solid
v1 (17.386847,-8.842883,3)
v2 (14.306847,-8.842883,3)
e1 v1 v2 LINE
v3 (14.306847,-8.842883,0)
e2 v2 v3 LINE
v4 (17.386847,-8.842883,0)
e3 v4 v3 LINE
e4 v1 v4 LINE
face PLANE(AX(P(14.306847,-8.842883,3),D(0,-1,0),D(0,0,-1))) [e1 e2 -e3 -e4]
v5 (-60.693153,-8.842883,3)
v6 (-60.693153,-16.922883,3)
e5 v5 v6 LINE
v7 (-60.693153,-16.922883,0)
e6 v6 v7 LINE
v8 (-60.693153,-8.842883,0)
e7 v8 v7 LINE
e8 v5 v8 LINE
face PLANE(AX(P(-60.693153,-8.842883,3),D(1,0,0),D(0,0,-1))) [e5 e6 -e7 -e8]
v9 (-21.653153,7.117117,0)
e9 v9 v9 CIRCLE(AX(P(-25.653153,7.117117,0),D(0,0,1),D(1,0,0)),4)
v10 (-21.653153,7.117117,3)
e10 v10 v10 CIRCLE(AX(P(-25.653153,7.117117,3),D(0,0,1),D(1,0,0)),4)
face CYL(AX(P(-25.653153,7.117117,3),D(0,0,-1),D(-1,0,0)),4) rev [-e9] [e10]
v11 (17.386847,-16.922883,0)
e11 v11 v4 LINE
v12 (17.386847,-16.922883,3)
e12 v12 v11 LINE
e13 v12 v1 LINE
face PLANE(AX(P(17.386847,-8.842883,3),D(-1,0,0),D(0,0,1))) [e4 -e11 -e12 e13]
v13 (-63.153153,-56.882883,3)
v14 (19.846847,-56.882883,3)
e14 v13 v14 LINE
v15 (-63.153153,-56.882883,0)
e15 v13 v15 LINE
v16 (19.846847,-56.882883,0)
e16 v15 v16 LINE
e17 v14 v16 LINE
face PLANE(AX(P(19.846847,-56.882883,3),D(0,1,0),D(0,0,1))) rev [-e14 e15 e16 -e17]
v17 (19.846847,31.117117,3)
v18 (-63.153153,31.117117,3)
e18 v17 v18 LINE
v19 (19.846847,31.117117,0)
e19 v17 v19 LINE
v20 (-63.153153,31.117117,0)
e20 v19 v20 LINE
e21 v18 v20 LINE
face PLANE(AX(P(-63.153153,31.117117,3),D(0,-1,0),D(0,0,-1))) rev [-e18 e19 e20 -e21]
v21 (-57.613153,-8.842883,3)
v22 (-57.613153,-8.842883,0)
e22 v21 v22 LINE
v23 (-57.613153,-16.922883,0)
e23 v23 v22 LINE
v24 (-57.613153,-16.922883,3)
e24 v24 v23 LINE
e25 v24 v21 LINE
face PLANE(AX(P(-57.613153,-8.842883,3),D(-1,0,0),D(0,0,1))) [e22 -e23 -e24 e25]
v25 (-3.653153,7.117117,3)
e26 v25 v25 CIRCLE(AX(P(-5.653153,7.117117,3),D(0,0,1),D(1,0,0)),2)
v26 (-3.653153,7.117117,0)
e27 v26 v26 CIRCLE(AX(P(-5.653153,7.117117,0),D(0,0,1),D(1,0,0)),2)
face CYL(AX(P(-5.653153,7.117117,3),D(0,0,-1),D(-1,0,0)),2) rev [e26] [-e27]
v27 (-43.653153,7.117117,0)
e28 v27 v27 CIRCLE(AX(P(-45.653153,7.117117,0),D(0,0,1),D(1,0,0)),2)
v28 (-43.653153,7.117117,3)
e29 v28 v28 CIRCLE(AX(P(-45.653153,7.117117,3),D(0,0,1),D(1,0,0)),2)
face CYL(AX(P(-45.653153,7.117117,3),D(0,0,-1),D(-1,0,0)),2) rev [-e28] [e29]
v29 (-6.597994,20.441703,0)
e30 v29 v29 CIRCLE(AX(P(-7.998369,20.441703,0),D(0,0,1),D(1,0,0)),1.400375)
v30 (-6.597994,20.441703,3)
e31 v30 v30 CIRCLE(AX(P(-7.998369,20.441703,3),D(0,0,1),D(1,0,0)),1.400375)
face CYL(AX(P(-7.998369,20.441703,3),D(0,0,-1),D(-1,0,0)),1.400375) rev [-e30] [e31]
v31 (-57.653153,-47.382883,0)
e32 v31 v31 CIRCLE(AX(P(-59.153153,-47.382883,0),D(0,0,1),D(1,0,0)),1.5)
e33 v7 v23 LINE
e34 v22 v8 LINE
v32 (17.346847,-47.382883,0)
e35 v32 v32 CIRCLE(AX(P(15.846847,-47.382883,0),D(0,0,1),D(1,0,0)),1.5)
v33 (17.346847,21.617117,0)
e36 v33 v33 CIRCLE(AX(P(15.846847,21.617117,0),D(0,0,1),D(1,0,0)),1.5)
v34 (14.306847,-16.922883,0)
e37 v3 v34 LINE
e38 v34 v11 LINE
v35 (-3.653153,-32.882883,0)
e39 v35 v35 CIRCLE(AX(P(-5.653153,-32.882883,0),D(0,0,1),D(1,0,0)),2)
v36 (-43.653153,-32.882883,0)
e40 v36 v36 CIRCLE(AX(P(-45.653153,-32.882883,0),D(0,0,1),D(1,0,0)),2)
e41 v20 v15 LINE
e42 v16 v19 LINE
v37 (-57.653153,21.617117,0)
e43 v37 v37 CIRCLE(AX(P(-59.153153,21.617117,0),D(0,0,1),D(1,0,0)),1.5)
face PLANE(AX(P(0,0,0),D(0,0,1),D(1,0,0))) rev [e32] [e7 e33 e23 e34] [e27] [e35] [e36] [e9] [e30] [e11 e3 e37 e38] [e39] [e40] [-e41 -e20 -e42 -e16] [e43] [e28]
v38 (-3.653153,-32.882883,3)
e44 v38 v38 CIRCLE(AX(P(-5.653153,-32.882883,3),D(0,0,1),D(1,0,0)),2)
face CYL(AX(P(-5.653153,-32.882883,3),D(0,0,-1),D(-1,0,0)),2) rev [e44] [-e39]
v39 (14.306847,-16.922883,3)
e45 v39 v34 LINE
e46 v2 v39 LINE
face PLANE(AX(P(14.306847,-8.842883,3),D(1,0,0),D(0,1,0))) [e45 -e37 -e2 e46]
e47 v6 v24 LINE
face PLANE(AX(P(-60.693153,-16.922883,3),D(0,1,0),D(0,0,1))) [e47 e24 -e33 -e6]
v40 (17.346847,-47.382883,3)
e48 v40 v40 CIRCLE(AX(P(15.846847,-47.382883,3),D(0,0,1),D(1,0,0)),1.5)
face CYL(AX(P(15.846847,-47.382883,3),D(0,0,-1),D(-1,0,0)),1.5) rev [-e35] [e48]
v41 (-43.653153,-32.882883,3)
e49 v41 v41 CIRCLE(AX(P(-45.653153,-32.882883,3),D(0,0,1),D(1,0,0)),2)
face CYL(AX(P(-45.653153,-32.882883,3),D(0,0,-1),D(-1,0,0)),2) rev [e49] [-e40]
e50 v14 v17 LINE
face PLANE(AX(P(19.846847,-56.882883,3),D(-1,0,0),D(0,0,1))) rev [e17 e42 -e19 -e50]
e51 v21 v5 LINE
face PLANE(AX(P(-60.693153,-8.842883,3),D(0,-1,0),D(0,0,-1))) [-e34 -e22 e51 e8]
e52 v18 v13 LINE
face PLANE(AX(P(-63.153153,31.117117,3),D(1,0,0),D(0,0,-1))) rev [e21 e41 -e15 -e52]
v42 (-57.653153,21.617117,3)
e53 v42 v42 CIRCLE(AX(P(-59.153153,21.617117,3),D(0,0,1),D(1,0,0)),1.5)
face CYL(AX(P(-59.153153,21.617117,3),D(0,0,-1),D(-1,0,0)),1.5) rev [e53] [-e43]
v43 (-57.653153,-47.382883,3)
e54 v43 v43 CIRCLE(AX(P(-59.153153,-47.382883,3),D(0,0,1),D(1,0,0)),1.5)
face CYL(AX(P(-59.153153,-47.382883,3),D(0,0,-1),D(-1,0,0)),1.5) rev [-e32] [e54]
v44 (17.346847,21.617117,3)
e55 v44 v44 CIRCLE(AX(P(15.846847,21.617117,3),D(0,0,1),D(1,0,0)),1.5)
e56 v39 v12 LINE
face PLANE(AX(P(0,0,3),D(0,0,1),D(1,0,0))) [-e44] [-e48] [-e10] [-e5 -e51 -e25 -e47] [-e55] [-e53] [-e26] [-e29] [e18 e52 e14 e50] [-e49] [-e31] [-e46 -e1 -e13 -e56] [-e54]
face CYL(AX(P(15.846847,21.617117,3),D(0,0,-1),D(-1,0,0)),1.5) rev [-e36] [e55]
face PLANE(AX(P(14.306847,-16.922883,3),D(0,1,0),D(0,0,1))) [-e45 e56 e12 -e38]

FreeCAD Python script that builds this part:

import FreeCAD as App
import Part
import Sketcher

V = App.Vector


def add_polygon(sketch, points):
    """Adds a closed chain of lines whose ends are joined by coincident constraints."""
    first, n = sketch.GeometryCount, len(points)
    for a, b in zip(points, points[1:] + points[:1]):
        sketch.addGeometry(Part.LineSegment(App.Vector(*a, 0), App.Vector(*b, 0)), False)
    for i in range(n):
        sketch.addConstraint(Sketcher.Constraint("Coincident", first + i, 2, first + (i + 1) % n, 1))

doc = App.newDocument("Part")
body = doc.addObject("PartDesign::Body", "Body")

# Sketch on XY plane
sketch1 = body.newObject("Sketcher::SketchObject", "Sketch")
sketch1.AttachmentSupport = (doc.getObject("XY_Plane"), [""])
sketch1.MapMode = "FlatFace"
add_polygon(sketch1, [(-63.2, 31.1), (-63.2, -56.9), (19.8, -56.9), (19.8, 31.1)])  # lines 0-3
sketch1.addGeometry(Part.Circle(V(-59.2, -47.4, 0), V(0, 0, 1), 1.5), False)  # 4
sketch1.addGeometry(Part.Circle(V(-45.7, -32.9, 0), V(0, 0, 1), 2), False)  # 5
sketch1.addGeometry(Part.Circle(V(-5.7, -32.9, 0), V(0, 0, 1), 2), False)  # 6
sketch1.addGeometry(Part.Circle(V(15.8, -47.4, 0), V(0, 0, 1), 1.5), False)  # 7
add_polygon(sketch1, [(-57.6, -16.9), (-60.7, -16.9), (-60.7, -8.8), (-57.6, -8.8)])  # lines 8-11
sketch1.addGeometry(Part.Circle(V(-45.7, 7.1, 0), V(0, 0, 1), 2), False)  # 12
sketch1.addGeometry(Part.Circle(V(-59.2, 21.6, 0), V(0, 0, 1), 1.5), False)  # 13
sketch1.addGeometry(Part.Circle(V(-25.7, 7.1, 0), V(0, 0, 1), 4), False)  # 14
add_polygon(sketch1, [(17.4, -16.9), (14.3, -16.9), (14.3, -8.8), (17.4, -8.8)])  # lines 15-18
sketch1.addGeometry(Part.Circle(V(-5.7, 7.1, 0), V(0, 0, 1), 2), False)  # 19
sketch1.addGeometry(Part.Circle(V(-8, 20.4, 0), V(0, 0, 1), 1.4), False)  # 20
sketch1.addGeometry(Part.Circle(V(15.8, 21.6, 0), V(0, 0, 1), 1.5), False)  # 21
sketch1.addConstraint([
    Sketcher.Constraint("Vertical", 0),
    Sketcher.Constraint("Horizontal", 1),
    Sketcher.Constraint("Vertical", 2),
    Sketcher.Constraint("Horizontal", 3),
    Sketcher.Constraint("Horizontal", 8),
    Sketcher.Constraint("Vertical", 9),
    Sketcher.Constraint("Horizontal", 10),
    Sketcher.Constraint("Vertical", 11),
    Sketcher.Constraint("Horizontal", 15),
    Sketcher.Constraint("Vertical", 16),
    Sketcher.Constraint("Horizontal", 17),
    Sketcher.Constraint("Vertical", 18),
    Sketcher.Constraint("Equal", 5, 6),
    Sketcher.Constraint("Equal", 4, 7),
    Sketcher.Constraint("Equal", 6, 12),
    Sketcher.Constraint("Equal", 7, 13),
    Sketcher.Constraint("Equal", 12, 19),
    Sketcher.Constraint("Equal", 13, 21),
    Sketcher.Constraint("Horizontal", 5, 3, 6, 3),
    Sketcher.Constraint("Horizontal", 4, 3, 7, 3),
    Sketcher.Constraint("Horizontal", 12, 3, 14, 3),
    Sketcher.Constraint("Horizontal", 14, 3, 19, 3),
    Sketcher.Constraint("Horizontal", 13, 3, 21, 3),
    Sketcher.Constraint("Horizontal", 11, 2, 15, 2),
    Sketcher.Constraint("Horizontal", 10, 2, 16, 2),
    Sketcher.Constraint("Vertical", 5, 3, 12, 3),
    Sketcher.Constraint("Vertical", 4, 3, 13, 3),
    Sketcher.Constraint("Vertical", 6, 3, 19, 3),
    Sketcher.Constraint("Vertical", 7, 3, 21, 3),
    Sketcher.Constraint("Equal", 10, 15),
    Sketcher.Constraint("Diameter", 4, 3.0),
    Sketcher.Constraint("Diameter", 5, 4.0),
    Sketcher.Constraint("Diameter", 14, 8.0),
    Sketcher.Constraint("DistanceX", 1, 1, 1, 2, 83.0),
    Sketcher.Constraint("DistanceY", 0, 2, 0, 1, 88.0),
    Sketcher.Constraint("DistanceX", 5, 3, 6, 3, 40.0),
    Sketcher.Constraint("DistanceX", 4, 3, 7, 3, 75.0),
    Sketcher.Constraint("DistanceY", 5, 3, 12, 3, 40.0),
    Sketcher.Constraint("DistanceY", 4, 3, 13, 3, 69.0),
    Sketcher.Constraint("DistanceX", 12, 3, 14, 3, 20.0),
    Sketcher.Constraint("DistanceX", 0, 2, 4, 3, 4.0),
    Sketcher.Constraint("DistanceY", 0, 2, 5, 3, 24.0),
    Sketcher.Constraint("DistanceX", 8, 2, 8, 1, 3.08),
    Sketcher.Constraint("DistanceY", 9, 1, 9, 2, 8.08),
    Sketcher.Constraint("DistanceX", 4, 3, 5, 3, 13.5),
    Sketcher.Constraint("DistanceY", 4, 3, 5, 3, 14.5),
    Sketcher.Constraint("Diameter", 20, 2.80075),
    Sketcher.Constraint("DistanceX", 8, 2, 5, 3, 15.04),
    Sketcher.Constraint("DistanceY", 5, 3, 8, 2, 15.96),
    Sketcher.Constraint("DistanceX", 6, 3, 15, 2, 19.96),
    Sketcher.Constraint("DistanceX", 20, 3, -1, 1, 7.998369),
    Sketcher.Constraint("DistanceX", 4, 3, -1, 1, 59.153153),
    Sketcher.Constraint("DistanceY", 4, 3, -1, 1, 47.382883),
    Sketcher.Constraint("DistanceY", -1, 1, 20, 3, 20.441703),
])
pad1 = body.newObject("PartDesign::Pad", "Pad")
pad1.Profile = sketch1
pad1.Length = 3

doc.recompute()
